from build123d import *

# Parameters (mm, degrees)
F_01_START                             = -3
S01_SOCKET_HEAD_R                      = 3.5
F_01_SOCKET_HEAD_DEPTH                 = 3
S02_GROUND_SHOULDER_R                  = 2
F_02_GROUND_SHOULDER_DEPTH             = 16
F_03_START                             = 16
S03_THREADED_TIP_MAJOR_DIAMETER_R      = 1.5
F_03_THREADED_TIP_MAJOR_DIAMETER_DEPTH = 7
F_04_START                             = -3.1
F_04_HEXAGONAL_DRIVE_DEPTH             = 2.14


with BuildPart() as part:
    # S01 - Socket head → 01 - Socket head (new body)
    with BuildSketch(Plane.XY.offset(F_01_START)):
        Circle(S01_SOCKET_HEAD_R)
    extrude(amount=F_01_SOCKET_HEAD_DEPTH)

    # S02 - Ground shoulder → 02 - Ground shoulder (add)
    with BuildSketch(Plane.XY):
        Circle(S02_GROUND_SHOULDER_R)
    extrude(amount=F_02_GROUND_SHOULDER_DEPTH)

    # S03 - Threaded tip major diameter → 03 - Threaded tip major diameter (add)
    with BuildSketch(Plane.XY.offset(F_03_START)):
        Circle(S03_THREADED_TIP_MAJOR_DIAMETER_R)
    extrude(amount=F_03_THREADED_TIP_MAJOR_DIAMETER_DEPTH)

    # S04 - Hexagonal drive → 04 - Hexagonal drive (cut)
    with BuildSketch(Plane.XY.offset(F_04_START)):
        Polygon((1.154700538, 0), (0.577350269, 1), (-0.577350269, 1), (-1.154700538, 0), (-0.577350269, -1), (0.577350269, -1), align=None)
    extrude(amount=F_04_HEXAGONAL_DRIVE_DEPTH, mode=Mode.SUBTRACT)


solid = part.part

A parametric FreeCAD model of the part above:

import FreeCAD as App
import Part
import Sketcher
from FreeCAD import Vector
Q = App.Units.Quantity

doc = App.newDocument("Part")
body = doc.addObject("PartDesign::Body", "Body")

# Sketch on XY plane
sketch1 = body.newObject("Sketcher::SketchObject", "Sketch")
sketch1.AttachmentSupport = (doc.getObject("XY_Plane"), [""])
sketch1.MapMode = "FlatFace"
sketch1.AttachmentOffset = App.Placement(Vector(0, 0, -3), App.Rotation())
sketch1.addGeometry(Part.Circle(Vector(0, 0, 0), Vector(0, 0, 1), 3.5), False)
sketch1.addConstraint([
    Sketcher.Constraint("Coincident", 0, 3, -1, 1),
    Sketcher.Constraint("Diameter", 0, Q("7 mm")),
])
pad1 = body.newObject("PartDesign::Pad", "Pad")
pad1.Profile = sketch1
pad1.Length = 3

# Sketch on XY plane
sketch2 = body.newObject("Sketcher::SketchObject", "Sketch001")
sketch2.AttachmentSupport = (doc.getObject("XY_Plane"), [""])
sketch2.MapMode = "FlatFace"
sketch2.addGeometry(Part.Circle(Vector(0, 0, 0), Vector(0, 0, 1), 2), False)
sketch2.addConstraint([
    Sketcher.Constraint("Coincident", 0, 3, -1, 1),
    Sketcher.Constraint("Diameter", 0, Q("4 mm")),
])
pad2 = body.newObject("PartDesign::Pad", "Pad001")
pad2.Profile = sketch2
pad2.Length = 16

# Sketch on XY plane
sketch3 = body.newObject("Sketcher::SketchObject", "Sketch002")
sketch3.AttachmentSupport = (doc.getObject("XY_Plane"), [""])
sketch3.MapMode = "FlatFace"
sketch3.AttachmentOffset = App.Placement(Vector(0, 0, 16), App.Rotation())
sketch3.addGeometry(Part.Circle(Vector(0, 0, 0), Vector(0, 0, 1), 1.5), False)
sketch3.addConstraint([
    Sketcher.Constraint("Coincident", 0, 3, -1, 1),
    Sketcher.Constraint("Diameter", 0, Q("3 mm")),
])
pad3 = body.newObject("PartDesign::Pad", "Pad002")
pad3.Profile = sketch3
pad3.Length = 7

# Sketch on XY plane
sketch4 = body.newObject("Sketcher::SketchObject", "Sketch003")
sketch4.AttachmentSupport = (doc.getObject("XY_Plane"), [""])
sketch4.MapMode = "FlatFace"
sketch4.AttachmentOffset = App.Placement(Vector(0, 0, -3.1), App.Rotation())
sketch4.addGeometry([
    Part.LineSegment(Vector(1.2, 0, 0), Vector(0.6, 1, 0)),  # 0
    Part.LineSegment(Vector(0.6, 1, 0), Vector(-0.6, 1, 0)),  # 1
    Part.LineSegment(Vector(-0.6, 1, 0), Vector(-1.2, 0, 0)),  # 2
    Part.LineSegment(Vector(-1.2, 0, 0), Vector(-0.6, -1, 0)),  # 3
    Part.LineSegment(Vector(-0.6, -1, 0), Vector(0.6, -1, 0)),  # 4
    Part.LineSegment(Vector(0.6, -1, 0), Vector(1.2, 0, 0)),  # 5
], False)
sketch4.addConstraint([
    Sketcher.Constraint("Coincident", 0, 2, 1, 1),
    Sketcher.Constraint("Coincident", 1, 2, 2, 1),
    Sketcher.Constraint("Coincident", 2, 2, 3, 1),
    Sketcher.Constraint("Coincident", 3, 2, 4, 1),
    Sketcher.Constraint("Coincident", 4, 2, 5, 1),
    Sketcher.Constraint("Coincident", 5, 2, 0, 1),
    Sketcher.Constraint("Horizontal", 1),
    Sketcher.Constraint("Horizontal", 4),
    Sketcher.Constraint("Symmetric", 0, 2, 3, 2, -1, 1),
    Sketcher.Constraint("Symmetric", 2, 2, 5, 2, -1, 1),
    Sketcher.Constraint("PointOnObject", 2, 2, -1),
    Sketcher.Constraint("Parallel", 2, 5),
    Sketcher.Constraint("Vertical", 1, 2, 3, 2),
    Sketcher.Constraint("Angle", 0, Q("120 deg")),
    Sketcher.Constraint("DistanceY", -1, 1, 0, 2, Q("1 mm")),
    Sketcher.Constraint("DistanceX", 1, 2, 1, 1, Q("1.154701 mm")),
])
pocket1 = body.newObject("PartDesign::Pocket", "Pocket")
pocket1.Profile = sketch4
pocket1.Length = 2.14
pocket1.Reversed = True

doc.recompute()
